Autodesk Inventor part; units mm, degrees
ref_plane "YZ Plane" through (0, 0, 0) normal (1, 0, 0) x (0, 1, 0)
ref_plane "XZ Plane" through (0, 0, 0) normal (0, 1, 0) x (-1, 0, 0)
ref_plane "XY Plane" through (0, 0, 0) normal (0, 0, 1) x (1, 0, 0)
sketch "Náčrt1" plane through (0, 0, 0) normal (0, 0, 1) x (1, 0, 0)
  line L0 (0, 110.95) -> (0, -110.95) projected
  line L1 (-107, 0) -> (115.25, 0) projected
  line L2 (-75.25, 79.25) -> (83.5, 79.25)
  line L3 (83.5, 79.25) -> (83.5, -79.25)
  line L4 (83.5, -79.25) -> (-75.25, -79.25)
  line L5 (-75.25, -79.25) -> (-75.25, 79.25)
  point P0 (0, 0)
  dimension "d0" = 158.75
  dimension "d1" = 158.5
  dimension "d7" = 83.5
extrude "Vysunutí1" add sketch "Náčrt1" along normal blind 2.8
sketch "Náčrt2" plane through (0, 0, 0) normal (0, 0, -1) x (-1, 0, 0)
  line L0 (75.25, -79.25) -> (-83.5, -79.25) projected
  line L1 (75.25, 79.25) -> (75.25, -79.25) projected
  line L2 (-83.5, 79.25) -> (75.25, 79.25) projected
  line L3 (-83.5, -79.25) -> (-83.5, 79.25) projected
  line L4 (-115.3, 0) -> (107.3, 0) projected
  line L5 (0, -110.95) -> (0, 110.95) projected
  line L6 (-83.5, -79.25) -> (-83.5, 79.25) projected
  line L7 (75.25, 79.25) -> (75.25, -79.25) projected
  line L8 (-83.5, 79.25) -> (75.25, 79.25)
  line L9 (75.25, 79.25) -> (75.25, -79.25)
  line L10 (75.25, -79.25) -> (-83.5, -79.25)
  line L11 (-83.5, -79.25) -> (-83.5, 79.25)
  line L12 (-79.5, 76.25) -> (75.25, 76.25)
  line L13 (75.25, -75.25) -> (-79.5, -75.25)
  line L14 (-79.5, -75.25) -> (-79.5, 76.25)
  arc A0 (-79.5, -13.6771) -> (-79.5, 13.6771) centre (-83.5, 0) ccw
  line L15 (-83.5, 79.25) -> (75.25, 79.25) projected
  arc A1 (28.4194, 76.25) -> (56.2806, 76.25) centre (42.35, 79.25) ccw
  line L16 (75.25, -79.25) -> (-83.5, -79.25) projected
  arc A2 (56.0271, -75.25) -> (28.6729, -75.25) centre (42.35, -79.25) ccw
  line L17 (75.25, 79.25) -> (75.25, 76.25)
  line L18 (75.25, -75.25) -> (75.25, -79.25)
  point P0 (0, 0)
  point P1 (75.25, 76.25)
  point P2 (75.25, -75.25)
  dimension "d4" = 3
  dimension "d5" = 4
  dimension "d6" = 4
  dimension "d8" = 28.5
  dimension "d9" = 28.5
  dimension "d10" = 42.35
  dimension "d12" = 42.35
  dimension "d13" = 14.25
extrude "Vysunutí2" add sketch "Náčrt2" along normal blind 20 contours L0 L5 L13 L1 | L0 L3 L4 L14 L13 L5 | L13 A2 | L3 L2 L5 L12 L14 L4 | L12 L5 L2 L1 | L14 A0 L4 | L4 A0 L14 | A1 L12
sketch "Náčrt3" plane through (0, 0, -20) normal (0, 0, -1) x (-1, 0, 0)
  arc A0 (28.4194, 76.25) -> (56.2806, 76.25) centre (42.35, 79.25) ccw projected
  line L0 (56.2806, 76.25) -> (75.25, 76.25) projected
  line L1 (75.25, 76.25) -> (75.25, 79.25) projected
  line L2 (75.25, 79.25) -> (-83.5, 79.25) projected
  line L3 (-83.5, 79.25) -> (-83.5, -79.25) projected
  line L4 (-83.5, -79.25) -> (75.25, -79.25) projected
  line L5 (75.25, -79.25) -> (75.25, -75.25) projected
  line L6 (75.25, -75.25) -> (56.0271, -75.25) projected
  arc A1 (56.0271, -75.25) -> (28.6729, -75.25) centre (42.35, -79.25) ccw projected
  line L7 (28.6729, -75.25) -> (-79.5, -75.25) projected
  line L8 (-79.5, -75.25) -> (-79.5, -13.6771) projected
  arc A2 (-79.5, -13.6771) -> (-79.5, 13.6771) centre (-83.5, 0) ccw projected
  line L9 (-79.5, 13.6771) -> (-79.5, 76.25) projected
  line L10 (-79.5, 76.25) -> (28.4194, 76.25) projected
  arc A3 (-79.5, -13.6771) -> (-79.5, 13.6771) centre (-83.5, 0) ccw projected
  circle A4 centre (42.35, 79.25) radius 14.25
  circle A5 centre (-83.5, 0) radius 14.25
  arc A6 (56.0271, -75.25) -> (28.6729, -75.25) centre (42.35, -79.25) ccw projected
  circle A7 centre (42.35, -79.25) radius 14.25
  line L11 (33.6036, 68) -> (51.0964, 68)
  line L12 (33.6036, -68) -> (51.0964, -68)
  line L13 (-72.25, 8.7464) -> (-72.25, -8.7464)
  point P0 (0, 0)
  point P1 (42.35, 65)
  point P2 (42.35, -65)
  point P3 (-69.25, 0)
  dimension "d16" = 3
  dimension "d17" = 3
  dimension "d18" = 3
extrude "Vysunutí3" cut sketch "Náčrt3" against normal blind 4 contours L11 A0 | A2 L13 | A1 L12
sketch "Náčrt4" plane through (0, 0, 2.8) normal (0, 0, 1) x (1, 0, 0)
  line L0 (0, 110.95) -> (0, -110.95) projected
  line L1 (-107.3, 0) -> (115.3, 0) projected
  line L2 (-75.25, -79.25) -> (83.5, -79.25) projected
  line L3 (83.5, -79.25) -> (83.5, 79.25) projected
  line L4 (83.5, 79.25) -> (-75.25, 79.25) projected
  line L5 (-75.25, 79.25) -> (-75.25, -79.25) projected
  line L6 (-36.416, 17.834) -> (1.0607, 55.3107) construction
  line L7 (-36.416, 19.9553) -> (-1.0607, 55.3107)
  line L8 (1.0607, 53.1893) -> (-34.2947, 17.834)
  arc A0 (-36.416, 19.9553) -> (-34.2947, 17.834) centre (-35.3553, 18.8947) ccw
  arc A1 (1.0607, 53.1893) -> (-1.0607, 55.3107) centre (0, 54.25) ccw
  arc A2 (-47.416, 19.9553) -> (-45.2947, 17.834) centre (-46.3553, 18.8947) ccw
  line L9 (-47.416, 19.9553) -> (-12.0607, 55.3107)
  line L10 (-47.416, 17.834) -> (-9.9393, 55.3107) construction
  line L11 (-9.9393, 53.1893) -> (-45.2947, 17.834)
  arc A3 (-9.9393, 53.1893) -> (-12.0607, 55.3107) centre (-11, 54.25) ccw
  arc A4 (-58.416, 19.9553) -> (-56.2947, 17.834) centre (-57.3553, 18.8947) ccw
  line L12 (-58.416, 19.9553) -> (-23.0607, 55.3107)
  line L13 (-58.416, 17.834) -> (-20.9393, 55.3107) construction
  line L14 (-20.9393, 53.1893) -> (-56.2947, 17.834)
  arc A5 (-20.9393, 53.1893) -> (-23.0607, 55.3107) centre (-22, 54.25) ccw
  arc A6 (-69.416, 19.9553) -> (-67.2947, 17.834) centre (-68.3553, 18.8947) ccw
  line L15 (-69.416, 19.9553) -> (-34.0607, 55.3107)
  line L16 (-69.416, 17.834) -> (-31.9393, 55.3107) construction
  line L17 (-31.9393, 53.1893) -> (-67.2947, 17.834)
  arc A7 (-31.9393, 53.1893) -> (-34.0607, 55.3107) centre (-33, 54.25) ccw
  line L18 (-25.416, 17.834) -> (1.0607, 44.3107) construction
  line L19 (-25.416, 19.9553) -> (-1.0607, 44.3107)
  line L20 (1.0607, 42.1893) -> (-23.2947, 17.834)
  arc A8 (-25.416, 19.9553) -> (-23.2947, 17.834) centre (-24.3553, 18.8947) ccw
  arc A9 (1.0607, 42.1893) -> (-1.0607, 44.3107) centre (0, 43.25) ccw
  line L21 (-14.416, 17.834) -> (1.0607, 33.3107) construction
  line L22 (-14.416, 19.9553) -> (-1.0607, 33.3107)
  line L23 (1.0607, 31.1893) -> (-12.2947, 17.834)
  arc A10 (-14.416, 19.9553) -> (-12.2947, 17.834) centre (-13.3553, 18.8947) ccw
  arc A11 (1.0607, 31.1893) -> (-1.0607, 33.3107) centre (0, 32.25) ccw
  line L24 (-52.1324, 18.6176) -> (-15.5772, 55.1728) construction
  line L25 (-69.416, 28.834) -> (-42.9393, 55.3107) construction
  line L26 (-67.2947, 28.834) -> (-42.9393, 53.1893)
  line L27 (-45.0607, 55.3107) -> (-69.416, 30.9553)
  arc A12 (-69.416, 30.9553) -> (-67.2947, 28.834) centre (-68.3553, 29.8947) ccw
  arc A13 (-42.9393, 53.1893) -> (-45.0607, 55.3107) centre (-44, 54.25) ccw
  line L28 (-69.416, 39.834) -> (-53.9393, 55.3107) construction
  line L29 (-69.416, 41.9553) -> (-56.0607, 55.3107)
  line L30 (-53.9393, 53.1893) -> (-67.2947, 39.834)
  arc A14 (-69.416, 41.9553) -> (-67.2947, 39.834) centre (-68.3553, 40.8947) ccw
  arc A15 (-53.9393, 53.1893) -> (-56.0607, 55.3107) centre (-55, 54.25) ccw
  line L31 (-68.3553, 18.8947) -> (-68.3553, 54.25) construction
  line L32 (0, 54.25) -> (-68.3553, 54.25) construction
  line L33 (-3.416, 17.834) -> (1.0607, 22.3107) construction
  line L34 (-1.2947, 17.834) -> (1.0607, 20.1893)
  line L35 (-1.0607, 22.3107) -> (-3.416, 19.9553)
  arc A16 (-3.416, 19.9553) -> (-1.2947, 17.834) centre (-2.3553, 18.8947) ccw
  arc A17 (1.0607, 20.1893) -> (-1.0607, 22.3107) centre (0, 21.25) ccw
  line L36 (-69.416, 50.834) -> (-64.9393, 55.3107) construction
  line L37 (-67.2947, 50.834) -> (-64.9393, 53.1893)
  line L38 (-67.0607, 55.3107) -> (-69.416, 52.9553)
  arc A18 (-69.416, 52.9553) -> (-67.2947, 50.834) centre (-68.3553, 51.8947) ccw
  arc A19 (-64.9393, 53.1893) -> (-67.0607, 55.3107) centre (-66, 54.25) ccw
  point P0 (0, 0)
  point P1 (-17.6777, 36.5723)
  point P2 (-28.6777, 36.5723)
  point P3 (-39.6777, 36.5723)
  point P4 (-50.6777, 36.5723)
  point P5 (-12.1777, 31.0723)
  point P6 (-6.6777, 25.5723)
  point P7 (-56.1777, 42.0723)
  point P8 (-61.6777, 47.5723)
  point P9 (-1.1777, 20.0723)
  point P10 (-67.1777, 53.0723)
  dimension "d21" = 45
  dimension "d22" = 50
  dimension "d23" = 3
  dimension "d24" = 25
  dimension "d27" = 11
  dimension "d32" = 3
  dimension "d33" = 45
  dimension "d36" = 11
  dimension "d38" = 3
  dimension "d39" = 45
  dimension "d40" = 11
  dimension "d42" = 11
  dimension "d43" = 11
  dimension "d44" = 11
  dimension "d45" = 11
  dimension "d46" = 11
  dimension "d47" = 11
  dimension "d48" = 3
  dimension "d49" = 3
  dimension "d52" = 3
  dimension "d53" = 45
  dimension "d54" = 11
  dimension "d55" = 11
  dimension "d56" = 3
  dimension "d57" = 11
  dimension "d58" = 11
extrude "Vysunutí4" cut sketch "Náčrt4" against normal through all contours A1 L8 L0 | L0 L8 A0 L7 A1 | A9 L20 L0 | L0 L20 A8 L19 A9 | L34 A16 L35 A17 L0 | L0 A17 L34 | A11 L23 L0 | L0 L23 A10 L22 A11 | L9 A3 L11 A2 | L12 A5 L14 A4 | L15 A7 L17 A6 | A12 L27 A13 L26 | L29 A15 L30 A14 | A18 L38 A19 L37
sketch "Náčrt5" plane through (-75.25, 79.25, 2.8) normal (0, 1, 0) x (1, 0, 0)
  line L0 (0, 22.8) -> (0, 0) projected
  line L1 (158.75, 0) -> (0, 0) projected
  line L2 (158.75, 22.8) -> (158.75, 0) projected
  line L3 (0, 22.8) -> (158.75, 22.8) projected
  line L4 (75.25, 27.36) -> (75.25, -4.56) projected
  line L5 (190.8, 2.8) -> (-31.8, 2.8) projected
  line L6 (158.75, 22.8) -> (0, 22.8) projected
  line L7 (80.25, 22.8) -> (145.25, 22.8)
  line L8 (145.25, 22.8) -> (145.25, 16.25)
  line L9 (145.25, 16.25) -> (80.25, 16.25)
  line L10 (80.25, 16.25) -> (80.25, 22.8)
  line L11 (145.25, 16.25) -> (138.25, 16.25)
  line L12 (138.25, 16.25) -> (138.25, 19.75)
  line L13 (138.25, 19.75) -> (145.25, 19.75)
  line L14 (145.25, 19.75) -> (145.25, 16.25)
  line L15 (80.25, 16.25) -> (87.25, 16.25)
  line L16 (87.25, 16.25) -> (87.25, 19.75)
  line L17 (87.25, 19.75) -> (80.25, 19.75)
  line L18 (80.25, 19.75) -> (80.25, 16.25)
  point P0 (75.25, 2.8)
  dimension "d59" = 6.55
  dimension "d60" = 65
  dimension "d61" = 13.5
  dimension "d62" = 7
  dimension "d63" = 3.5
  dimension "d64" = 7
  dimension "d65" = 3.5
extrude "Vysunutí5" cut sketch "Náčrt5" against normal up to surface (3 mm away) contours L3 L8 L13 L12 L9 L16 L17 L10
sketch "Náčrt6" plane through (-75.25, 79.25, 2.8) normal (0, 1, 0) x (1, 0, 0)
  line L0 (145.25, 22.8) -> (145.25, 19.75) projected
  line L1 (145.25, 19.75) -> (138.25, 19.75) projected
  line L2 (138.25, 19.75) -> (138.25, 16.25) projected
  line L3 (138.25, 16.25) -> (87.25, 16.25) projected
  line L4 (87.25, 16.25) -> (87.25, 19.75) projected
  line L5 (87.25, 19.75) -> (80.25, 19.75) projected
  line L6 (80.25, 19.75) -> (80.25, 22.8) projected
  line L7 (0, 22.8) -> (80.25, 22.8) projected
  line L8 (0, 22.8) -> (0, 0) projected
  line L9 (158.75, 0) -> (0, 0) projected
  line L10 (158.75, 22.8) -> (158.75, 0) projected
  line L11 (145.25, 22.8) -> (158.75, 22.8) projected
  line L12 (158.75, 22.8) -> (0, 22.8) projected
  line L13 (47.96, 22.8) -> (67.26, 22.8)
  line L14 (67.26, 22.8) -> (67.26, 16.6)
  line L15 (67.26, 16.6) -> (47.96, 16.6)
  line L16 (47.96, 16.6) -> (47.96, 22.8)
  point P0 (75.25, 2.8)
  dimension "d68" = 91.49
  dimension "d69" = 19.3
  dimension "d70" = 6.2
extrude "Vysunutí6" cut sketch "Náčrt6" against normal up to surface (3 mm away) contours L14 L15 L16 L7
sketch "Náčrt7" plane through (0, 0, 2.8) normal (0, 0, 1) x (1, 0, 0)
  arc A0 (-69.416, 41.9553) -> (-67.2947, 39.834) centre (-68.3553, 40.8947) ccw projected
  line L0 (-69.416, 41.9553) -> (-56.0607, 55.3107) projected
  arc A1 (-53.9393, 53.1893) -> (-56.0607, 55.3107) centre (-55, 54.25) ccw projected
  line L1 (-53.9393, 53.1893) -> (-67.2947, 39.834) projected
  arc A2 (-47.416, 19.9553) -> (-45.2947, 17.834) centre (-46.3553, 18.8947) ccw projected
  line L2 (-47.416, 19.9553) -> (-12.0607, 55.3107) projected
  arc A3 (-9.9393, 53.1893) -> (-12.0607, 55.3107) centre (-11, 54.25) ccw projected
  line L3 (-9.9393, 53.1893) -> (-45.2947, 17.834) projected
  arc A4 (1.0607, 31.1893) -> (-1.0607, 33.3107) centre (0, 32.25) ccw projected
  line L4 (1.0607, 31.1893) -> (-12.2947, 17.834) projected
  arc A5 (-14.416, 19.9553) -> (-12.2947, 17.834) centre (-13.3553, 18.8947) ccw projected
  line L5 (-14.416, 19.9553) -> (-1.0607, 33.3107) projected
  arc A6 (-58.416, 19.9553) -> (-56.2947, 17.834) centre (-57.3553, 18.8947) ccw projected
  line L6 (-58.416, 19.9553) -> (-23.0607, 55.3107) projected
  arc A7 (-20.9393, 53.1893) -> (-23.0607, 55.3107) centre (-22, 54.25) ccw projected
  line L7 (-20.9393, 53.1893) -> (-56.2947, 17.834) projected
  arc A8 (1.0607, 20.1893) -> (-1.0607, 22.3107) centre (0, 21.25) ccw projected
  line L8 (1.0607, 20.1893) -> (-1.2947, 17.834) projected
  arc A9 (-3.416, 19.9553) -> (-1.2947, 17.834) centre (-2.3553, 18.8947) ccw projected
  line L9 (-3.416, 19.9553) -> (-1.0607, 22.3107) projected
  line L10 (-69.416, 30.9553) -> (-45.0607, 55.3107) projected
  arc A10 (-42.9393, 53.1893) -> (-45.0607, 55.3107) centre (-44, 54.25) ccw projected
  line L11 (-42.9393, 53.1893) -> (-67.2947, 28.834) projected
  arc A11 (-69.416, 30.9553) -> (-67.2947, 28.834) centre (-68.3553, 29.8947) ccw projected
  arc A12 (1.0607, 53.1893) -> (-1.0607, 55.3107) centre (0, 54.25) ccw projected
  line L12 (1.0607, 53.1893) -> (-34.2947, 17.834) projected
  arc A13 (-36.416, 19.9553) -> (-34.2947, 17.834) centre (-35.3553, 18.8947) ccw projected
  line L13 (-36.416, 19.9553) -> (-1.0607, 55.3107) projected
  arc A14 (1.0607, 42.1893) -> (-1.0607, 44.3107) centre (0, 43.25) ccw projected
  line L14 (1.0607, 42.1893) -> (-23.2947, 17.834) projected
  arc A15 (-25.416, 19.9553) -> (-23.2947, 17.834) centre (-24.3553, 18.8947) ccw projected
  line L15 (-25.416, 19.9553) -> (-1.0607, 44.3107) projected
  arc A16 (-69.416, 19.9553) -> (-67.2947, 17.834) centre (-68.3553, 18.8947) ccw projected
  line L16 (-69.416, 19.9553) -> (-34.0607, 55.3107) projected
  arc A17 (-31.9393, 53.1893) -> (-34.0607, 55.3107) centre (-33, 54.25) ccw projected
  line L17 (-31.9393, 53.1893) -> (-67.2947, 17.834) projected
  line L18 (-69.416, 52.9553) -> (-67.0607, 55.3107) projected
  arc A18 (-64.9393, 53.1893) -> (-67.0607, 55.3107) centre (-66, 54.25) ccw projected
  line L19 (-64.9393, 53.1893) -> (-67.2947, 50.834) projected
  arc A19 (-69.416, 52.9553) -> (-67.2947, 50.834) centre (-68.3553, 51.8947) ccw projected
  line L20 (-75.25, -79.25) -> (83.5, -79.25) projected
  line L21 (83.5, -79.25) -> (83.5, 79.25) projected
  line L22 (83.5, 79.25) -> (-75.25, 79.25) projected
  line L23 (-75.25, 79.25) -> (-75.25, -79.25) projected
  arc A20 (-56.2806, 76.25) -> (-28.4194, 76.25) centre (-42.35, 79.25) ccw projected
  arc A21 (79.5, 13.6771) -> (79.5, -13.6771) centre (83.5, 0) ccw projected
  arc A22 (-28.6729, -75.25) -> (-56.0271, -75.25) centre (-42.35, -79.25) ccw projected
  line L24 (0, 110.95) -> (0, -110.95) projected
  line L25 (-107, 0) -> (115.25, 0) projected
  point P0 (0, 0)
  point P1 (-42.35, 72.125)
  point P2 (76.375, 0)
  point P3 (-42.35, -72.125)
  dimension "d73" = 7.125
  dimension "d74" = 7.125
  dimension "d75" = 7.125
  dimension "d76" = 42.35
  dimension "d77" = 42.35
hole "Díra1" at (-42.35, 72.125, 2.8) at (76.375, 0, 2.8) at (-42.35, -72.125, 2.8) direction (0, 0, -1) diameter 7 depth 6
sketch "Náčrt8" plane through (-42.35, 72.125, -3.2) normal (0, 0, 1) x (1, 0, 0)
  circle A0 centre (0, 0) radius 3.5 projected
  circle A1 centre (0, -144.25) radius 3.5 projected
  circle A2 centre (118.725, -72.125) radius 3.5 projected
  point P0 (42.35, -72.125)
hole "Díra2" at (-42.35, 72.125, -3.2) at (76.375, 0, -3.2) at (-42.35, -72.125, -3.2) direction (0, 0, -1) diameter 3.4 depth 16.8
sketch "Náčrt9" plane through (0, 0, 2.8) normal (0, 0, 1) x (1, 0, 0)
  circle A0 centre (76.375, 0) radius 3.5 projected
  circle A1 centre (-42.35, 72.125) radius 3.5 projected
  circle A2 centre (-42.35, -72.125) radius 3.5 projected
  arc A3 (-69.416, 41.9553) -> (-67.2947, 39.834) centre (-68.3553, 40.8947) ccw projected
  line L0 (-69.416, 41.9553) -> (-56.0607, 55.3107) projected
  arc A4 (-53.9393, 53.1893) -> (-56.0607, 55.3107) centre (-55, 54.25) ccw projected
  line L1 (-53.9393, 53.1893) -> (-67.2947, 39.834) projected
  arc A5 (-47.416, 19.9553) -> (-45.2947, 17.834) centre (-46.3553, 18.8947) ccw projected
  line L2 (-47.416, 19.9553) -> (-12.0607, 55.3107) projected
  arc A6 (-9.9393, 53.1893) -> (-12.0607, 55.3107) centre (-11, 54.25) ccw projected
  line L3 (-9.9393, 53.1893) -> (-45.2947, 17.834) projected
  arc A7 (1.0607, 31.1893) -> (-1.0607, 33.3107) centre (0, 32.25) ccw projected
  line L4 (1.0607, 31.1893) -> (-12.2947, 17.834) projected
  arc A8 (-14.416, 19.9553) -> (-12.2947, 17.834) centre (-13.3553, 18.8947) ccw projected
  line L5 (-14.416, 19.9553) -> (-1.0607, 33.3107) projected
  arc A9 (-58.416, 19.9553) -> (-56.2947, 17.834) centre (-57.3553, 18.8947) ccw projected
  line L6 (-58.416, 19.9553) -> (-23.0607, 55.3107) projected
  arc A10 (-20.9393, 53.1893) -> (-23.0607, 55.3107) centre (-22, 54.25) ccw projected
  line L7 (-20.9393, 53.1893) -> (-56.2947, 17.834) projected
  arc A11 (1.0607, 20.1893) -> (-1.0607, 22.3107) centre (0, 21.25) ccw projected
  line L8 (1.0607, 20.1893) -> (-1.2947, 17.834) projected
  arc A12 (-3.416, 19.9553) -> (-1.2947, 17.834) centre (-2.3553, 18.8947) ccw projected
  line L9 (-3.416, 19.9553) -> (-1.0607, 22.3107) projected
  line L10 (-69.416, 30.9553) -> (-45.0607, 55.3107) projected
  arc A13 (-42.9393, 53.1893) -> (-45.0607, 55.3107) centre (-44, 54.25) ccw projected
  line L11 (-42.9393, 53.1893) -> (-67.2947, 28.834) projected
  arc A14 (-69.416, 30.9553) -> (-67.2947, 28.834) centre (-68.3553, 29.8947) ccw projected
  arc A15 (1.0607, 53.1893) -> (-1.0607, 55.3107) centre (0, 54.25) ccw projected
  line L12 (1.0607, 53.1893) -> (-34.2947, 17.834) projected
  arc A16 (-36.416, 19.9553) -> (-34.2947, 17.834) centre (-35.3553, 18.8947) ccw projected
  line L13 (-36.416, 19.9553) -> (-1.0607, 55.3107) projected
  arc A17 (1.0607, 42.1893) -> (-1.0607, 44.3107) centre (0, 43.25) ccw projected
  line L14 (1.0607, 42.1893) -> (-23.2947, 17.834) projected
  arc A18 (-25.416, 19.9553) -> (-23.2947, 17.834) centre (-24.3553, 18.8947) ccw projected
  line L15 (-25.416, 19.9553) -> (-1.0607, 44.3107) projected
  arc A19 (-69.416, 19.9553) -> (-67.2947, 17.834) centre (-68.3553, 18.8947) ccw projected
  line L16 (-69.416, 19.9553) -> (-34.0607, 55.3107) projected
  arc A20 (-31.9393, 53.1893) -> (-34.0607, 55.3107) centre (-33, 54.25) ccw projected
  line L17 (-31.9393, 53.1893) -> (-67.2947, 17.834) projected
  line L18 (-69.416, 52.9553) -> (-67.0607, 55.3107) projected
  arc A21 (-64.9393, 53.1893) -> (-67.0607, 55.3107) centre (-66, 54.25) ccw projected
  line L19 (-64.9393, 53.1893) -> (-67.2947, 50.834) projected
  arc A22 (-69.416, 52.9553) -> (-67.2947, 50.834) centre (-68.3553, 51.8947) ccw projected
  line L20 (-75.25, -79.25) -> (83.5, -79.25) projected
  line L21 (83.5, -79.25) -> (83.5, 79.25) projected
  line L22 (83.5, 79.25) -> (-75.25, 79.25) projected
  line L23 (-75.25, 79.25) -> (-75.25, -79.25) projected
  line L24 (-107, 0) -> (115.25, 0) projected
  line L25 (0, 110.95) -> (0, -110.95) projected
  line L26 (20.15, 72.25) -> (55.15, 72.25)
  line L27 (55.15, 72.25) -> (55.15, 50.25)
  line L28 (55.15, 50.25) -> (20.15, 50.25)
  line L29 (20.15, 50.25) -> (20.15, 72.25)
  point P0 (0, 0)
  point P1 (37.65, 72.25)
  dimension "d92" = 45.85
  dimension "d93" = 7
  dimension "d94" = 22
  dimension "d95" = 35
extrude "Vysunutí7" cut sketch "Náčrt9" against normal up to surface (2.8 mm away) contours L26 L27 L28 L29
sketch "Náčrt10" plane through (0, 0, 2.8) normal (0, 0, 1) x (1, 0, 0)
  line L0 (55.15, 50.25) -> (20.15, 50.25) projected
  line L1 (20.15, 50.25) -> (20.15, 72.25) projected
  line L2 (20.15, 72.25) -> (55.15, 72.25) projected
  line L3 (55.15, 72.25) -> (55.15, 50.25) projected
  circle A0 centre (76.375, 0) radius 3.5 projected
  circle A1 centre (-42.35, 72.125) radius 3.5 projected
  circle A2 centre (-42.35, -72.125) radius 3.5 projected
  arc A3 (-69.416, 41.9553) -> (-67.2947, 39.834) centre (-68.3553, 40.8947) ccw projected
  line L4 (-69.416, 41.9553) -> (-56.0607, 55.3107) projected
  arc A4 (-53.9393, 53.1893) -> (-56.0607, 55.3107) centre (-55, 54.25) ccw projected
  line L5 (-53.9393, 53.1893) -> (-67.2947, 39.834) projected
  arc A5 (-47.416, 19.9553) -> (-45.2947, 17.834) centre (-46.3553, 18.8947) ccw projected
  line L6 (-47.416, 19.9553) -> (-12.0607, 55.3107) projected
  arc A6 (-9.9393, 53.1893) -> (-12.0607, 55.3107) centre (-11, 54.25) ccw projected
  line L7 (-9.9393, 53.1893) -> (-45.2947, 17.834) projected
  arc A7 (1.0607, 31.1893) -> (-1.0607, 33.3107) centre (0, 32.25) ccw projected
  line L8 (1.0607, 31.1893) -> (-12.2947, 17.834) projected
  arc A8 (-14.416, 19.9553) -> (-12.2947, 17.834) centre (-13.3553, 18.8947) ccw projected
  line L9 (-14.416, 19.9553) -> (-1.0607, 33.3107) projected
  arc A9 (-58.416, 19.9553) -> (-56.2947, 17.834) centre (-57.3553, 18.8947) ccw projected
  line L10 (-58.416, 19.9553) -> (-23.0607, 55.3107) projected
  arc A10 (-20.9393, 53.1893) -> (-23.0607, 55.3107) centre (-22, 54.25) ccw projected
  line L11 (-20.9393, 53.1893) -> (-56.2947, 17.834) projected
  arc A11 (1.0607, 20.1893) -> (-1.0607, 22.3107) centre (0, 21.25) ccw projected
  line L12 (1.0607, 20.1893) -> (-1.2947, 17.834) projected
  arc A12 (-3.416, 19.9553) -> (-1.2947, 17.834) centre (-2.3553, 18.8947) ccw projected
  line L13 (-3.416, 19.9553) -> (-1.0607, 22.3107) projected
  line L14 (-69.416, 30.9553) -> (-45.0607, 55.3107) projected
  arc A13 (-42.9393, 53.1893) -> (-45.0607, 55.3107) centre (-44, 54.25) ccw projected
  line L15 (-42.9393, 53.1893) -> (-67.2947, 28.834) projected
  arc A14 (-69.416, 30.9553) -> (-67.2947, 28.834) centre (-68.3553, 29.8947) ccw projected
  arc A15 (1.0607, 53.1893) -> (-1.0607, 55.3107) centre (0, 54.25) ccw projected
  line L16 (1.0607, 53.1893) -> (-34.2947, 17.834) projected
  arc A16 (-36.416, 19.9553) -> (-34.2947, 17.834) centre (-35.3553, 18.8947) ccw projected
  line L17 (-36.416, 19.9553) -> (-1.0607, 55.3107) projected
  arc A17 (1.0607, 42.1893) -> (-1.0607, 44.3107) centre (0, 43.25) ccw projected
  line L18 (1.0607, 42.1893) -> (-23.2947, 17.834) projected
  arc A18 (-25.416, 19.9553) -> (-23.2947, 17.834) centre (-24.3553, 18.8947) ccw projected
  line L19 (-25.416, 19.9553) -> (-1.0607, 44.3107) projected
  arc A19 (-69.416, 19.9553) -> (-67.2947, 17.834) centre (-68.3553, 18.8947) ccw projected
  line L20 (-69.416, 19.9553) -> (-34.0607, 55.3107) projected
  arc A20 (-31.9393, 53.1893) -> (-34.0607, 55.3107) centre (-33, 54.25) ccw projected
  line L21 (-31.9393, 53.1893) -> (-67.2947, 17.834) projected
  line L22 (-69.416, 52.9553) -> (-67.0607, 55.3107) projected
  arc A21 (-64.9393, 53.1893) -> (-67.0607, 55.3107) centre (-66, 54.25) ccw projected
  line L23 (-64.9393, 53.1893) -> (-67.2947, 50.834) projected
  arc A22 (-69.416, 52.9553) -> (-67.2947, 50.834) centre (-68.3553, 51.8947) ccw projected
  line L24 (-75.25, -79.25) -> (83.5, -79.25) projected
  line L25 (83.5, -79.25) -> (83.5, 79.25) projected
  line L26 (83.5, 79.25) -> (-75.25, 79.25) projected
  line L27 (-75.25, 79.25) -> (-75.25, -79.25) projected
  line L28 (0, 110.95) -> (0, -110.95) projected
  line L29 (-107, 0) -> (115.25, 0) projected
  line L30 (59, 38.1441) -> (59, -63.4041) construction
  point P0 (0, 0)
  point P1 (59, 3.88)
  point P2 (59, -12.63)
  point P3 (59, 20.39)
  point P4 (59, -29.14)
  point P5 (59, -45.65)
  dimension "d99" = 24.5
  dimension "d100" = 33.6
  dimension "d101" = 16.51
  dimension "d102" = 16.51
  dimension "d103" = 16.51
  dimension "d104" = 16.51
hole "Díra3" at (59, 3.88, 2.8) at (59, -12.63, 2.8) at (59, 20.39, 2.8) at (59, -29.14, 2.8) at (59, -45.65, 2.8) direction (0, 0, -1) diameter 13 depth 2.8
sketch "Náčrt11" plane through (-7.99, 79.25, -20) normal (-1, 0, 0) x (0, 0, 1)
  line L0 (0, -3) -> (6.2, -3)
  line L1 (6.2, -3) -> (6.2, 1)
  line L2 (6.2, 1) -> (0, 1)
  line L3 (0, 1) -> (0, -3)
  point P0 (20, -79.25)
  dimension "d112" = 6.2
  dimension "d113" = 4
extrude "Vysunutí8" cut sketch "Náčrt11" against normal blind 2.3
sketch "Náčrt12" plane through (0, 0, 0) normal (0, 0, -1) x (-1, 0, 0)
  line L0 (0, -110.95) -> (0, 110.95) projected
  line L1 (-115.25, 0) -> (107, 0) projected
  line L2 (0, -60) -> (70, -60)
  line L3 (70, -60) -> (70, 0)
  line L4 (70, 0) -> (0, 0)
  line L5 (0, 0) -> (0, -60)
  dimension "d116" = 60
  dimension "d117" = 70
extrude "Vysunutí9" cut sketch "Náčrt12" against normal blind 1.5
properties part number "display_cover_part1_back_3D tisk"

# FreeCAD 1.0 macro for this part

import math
import FreeCAD as App
import Part
import Sketcher
from FreeCAD import Vector
Q = App.Units.Quantity

doc = App.newDocument("Part")
body = doc.addObject("PartDesign::Body", "Body")

# Sketch on XY plane
sketch1 = body.newObject("Sketcher::SketchObject", "Sketch")
sketch1.AttachmentSupport = (doc.getObject("XY_Plane"), [""])
sketch1.MapMode = "FlatFace"
sketch1.addGeometry([
    Part.LineSegment(Vector(83.5, 79.25, 0), Vector(-75.25, 79.25, 0)),
    Part.LineSegment(Vector(-75.25, 79.25, 0), Vector(-75.25, -79.25, 0)),
    Part.LineSegment(Vector(-75.25, -79.25, 0), Vector(83.5, -79.25, 0)),
    Part.LineSegment(Vector(83.5, -79.25, 0), Vector(83.5, 79.25, 0)),
], False)
sketch1.addConstraint([
    Sketcher.Constraint("Coincident", 0, 2, 1, 1),
    Sketcher.Constraint("Coincident", 1, 2, 2, 1),
    Sketcher.Constraint("Coincident", 2, 2, 3, 1),
    Sketcher.Constraint("Coincident", 3, 2, 0, 1),
    Sketcher.Constraint("Horizontal", 0),
    Sketcher.Constraint("Vertical", 1),
    Sketcher.Constraint("Horizontal", 2),
    Sketcher.Constraint("Vertical", 3),
    Sketcher.Constraint("DistanceY", 1, 2, 1, 1, 158.5),
    Sketcher.Constraint("DistanceX", 0, 2, 0, 1, 158.75),
    Sketcher.Constraint("DistanceX", -1, 1, 2, 2, 83.5),
    Sketcher.Constraint("DistanceY", -1, 1, 0, 2, 79.25),
])
pad1 = body.newObject("PartDesign::Pad", "Pad")
pad1.Profile = sketch1
pad1.Length = 2.8

# Sketch on XY plane
sketch2 = body.newObject("Sketcher::SketchObject", "Sketch001")
sketch2.AttachmentSupport = (doc.getObject("XY_Plane"), [""])
sketch2.MapMode = "FlatFace"
sketch2.addGeometry([
    Part.LineSegment(Vector(-75.25, -79.25, 0), Vector(-75.25, -75.25, 0)),  # 0
    Part.LineSegment(Vector(-75.25, -75.25, 0), Vector(-56.0271, -75.25, 0)),  # 1
    Part.ArcOfCircle(Part.Circle(Vector(-42.35, -79.25, 0), Vector(0, 0, 1), 14.25002), math.radians(16.302069), math.radians(163.697931)),  # 2
    Part.LineSegment(Vector(-28.6729, -75.25, 0), Vector(79.5, -75.25, 0)),  # 3
    Part.LineSegment(Vector(79.5, -75.25, 0), Vector(79.5, -13.6771, 0)),  # 4
    Part.ArcOfCircle(Part.Circle(Vector(83.5, 0, 0), Vector(0, 0, 1), 14.25002), math.radians(106.302069), math.radians(253.697931)),  # 5
    Part.LineSegment(Vector(79.5, 13.6771, 0), Vector(79.5, 76.25, 0)),  # 6
    Part.LineSegment(Vector(79.5, 76.25, 0), Vector(-28.4194, 76.25, 0)),  # 7
    Part.ArcOfCircle(Part.Circle(Vector(-42.35, 79.25, 0), Vector(0, 0, 1), 14.249969), math.radians(-167.846776), math.radians(-12.153224)),  # 8
    Part.LineSegment(Vector(-56.2806, 76.25, 0), Vector(-75.25, 76.25, 0)),  # 9
    Part.LineSegment(Vector(-75.25, 76.25, 0), Vector(-75.25, 79.25, 0)),  # 10
    Part.LineSegment(Vector(-75.25, 79.25, 0), Vector(83.5, 79.25, 0)),  # 11
    Part.LineSegment(Vector(83.5, 79.25, 0), Vector(83.5, -79.25, 0)),  # 12
    Part.LineSegment(Vector(83.5, -79.25, 0), Vector(-75.25, -79.25, 0)),  # 13
], False)
sketch2.addConstraint([
    Sketcher.Constraint("Coincident", 0, 2, 1, 1),
    Sketcher.Constraint("Coincident", 1, 2, 2, 2),
    Sketcher.Constraint("Coincident", 2, 1, 3, 1),
    Sketcher.Constraint("Coincident", 3, 2, 4, 1),
    Sketcher.Constraint("Coincident", 4, 2, 5, 2),
    Sketcher.Constraint("Coincident", 5, 1, 6, 1),
    Sketcher.Constraint("Coincident", 6, 2, 7, 1),
    Sketcher.Constraint("Coincident", 7, 2, 8, 2),
    Sketcher.Constraint("Coincident", 8, 1, 9, 1),
    Sketcher.Constraint("Coincident", 9, 2, 10, 1),
    Sketcher.Constraint("Coincident", 10, 2, 11, 1),
    Sketcher.Constraint("Coincident", 11, 2, 12, 1),
    Sketcher.Constraint("Coincident", 12, 2, 13, 1),
    Sketcher.Constraint("Coincident", 13, 2, 0, 1),
    Sketcher.Constraint("Vertical", 0),
    Sketcher.Constraint("Horizontal", 1),
    Sketcher.Constraint("Horizontal", 3),
    Sketcher.Constraint("Vertical", 4),
    Sketcher.Constraint("Vertical", 6),
    Sketcher.Constraint("Horizontal", 7),
    Sketcher.Constraint("Horizontal", 9),
    Sketcher.Constraint("Vertical", 10),
    Sketcher.Constraint("Horizontal", 11),
    Sketcher.Constraint("Vertical", 12),
    Sketcher.Constraint("Horizontal", 13),
    Sketcher.Constraint("Equal", 2, 5),
    Sketcher.Constraint("Equal", 5, 8),
    Sketcher.Constraint("Symmetric", 2, 3, 8, 3, -1),
    Sketcher.Constraint("Symmetric", 4, 2, 5, 1, -1),
    Sketcher.Constraint("Symmetric", 10, 2, 13, 2, -1),
    Sketcher.Constraint("Horizontal", 1, 2, 2, 1),
    Sketcher.Constraint("Horizontal", 7, 2, 8, 1),
    Sketcher.Constraint("Horizontal", 8, 3, 10, 2),
    Sketcher.Constraint("Vertical", 5, 3, 11, 2),
    Sketcher.Constraint("DistanceY", 0, 1, 0, 2, 4.0),
    Sketcher.Constraint("DistanceY", 10, 1, 10, 2, 3.0),
    Sketcher.Constraint("Radius", 2, 14.25),
    Sketcher.Constraint("DistanceX", 3, 2, 5, 3, 4.0),
    Sketcher.Constraint("DistanceX", 2, 3, -1, 1, 42.35),
    Sketcher.Constraint("DistanceY", 12, 2, 12, 1, 158.5),
    Sketcher.Constraint("DistanceX", 11, 1, 11, 2, 158.75),
    Sketcher.Constraint("DistanceX", -1, 1, 5, 3, 83.5),
])
pad2 = body.newObject("PartDesign::Pad", "Pad001")
pad2.Profile = sketch2
pad2.Length = 20
pad2.Reversed = True

# Sketch on XY plane
sketch3 = body.newObject("Sketcher::SketchObject", "Sketch002")
sketch3.AttachmentSupport = (doc.getObject("XY_Plane"), [""])
sketch3.MapMode = "FlatFace"
sketch3.AttachmentOffset = App.Placement(Vector(0, 0, -20), App.Rotation())
sketch3.addGeometry([
    Part.LineSegment(Vector(-51.0964, 68, 0), Vector(-33.6036, 68, 0)),  # 0
    Part.ArcOfCircle(Part.Circle(Vector(-42.35, 79.25, 0), Vector(0, 0, 1), 14.249969), math.radians(-127.863558), math.radians(-52.136442)),  # 1
    Part.ArcOfCircle(Part.Circle(Vector(83.5, 0, 0), Vector(0, 0, 1), 14.25002), math.radians(142.136442), math.radians(217.863558)),  # 2
    Part.LineSegment(Vector(72.25, -8.7464, 0), Vector(72.25, 8.7464, 0)),  # 3
    Part.ArcOfCircle(Part.Circle(Vector(-42.35, -79.25, 0), Vector(0, 0, 1), 14.25002), math.radians(52.136442), math.radians(127.863558)),  # 4
    Part.LineSegment(Vector(-51.0964, -68, 0), Vector(-33.6036, -68, 0)),  # 5
], False)
sketch3.addConstraint([
    Sketcher.Constraint("Coincident", 0, 1, 1, 1),
    Sketcher.Constraint("Coincident", 1, 2, 0, 2),
    Sketcher.Constraint("Coincident", 2, 1, 3, 2),
    Sketcher.Constraint("Coincident", 3, 1, 2, 2),
    Sketcher.Constraint("Coincident", 4, 1, 5, 2),
    Sketcher.Constraint("Coincident", 5, 1, 4, 2),
    Sketcher.Constraint("Horizontal", 0),
    Sketcher.Constraint("Vertical", 3),
    Sketcher.Constraint("Horizontal", 5),
    Sketcher.Constraint("Equal", 1, 2),
    Sketcher.Constraint("Equal", 2, 4),
    Sketcher.Constraint("Symmetric", 1, 3, 4, 3, -1),
    Sketcher.Constraint("PointOnObject", 2, 3, -1),
    Sketcher.Constraint("Vertical", 1, 2, 4, 1),
    Sketcher.Constraint("Equal", 5, 3),
    Sketcher.Constraint("Radius", 1, 14.25),
    Sketcher.Constraint("DistanceY", -1, 1, 0, 1, 68.0),
    Sketcher.Constraint("DistanceX", -1, 1, 2, 3, 83.5),
    Sketcher.Constraint("DistanceY", 4, 3, 1, 3, 158.5),
    Sketcher.Constraint("DistanceX", 1, 3, 2, 1, 114.6),
])
pocket1 = body.newObject("PartDesign::Pocket", "Pocket")
pocket1.Profile = sketch3
pocket1.Length = 4
pocket1.Reversed = True

# Sketch on XY plane
sketch4 = body.newObject("Sketcher::SketchObject", "Sketch003")
sketch4.AttachmentSupport = (doc.getObject("XY_Plane"), [""])
sketch4.MapMode = "FlatFace"
sketch4.AttachmentOffset = App.Placement(Vector(0, 0, 2.8), App.Rotation())
sketch4.addGeometry([
    Part.ArcOfCircle(Part.Circle(Vector(0, 54.25, 0), Vector(0, 0, 1), 1.500056), math.radians(-45), math.radians(135)),  # 0
    Part.LineSegment(Vector(-1.0607, 55.3107, 0), Vector(-36.416, 19.9553, 0)),  # 1
    Part.ArcOfCircle(Part.Circle(Vector(-35.3553, 18.8947, 0), Vector(0, 0, 1), 1.499986), math.radians(135.002701), math.radians(314.997299)),  # 2
    Part.LineSegment(Vector(-34.2947, 17.834, 0), Vector(1.0607, 53.1893, 0)),  # 3
    Part.ArcOfCircle(Part.Circle(Vector(0, 43.25, 0), Vector(0, 0, 1), 1.500056), math.radians(-45), math.radians(135)),  # 4
    Part.LineSegment(Vector(-1.0607, 44.3107, 0), Vector(-25.416, 19.9553, 0)),  # 5
    Part.ArcOfCircle(Part.Circle(Vector(-24.3553, 18.8947, 0), Vector(0, 0, 1), 1.499986), math.radians(135.002701), math.radians(314.997299)),  # 6
    Part.LineSegment(Vector(-23.2947, 17.834, 0), Vector(1.0607, 42.1893, 0)),  # 7
    Part.LineSegment(Vector(-1.2947, 17.834, 0), Vector(1.0607, 20.1893, 0)),  # 8
    Part.ArcOfCircle(Part.Circle(Vector(0, 21.25, 0), Vector(0, 0, 1), 1.500056), math.radians(-45), math.radians(135)),  # 9
    Part.LineSegment(Vector(-1.0607, 22.3107, 0), Vector(-3.416, 19.9553, 0)),  # 10
    Part.ArcOfCircle(Part.Circle(Vector(-2.3553, 18.8947, 0), Vector(0, 0, 1), 1.499986), math.radians(135.002701), math.radians(314.997299)),  # 11
    Part.ArcOfCircle(Part.Circle(Vector(0, 32.25, 0), Vector(0, 0, 1), 1.500056), math.radians(-45), math.radians(135)),  # 12
    Part.LineSegment(Vector(-1.0607, 33.3107, 0), Vector(-14.416, 19.9553, 0)),  # 13
    Part.ArcOfCircle(Part.Circle(Vector(-13.3553, 18.8947, 0), Vector(0, 0, 1), 1.499986), math.radians(135.002701), math.radians(314.997299)),  # 14
    Part.LineSegment(Vector(-12.2947, 17.834, 0), Vector(1.0607, 31.1893, 0)),  # 15
    Part.LineSegment(Vector(-12.0607, 55.3107, 0), Vector(-47.416, 19.9553, 0)),  # 16
    Part.ArcOfCircle(Part.Circle(Vector(-46.3553, 18.8947, 0), Vector(0, 0, 1), 1.499986), math.radians(135.002701), math.radians(314.997299)),  # 17
    Part.LineSegment(Vector(-45.2947, 17.834, 0), Vector(-9.9393, 53.1893, 0)),  # 18
    Part.ArcOfCircle(Part.Circle(Vector(-11, 54.25, 0), Vector(0, 0, 1), 1.500056), math.radians(-45), math.radians(135)),  # 19
    Part.LineSegment(Vector(-23.0607, 55.3107, 0), Vector(-58.416, 19.9553, 0)),  # 20
    Part.ArcOfCircle(Part.Circle(Vector(-57.3553, 18.8947, 0), Vector(0, 0, 1), 1.499986), math.radians(135.002701), math.radians(314.997299)),  # 21
    Part.LineSegment(Vector(-56.2947, 17.834, 0), Vector(-20.9393, 53.1893, 0)),  # 22
    Part.ArcOfCircle(Part.Circle(Vector(-22, 54.25, 0), Vector(0, 0, 1), 1.500056), math.radians(-45), math.radians(135)),  # 23
    Part.LineSegment(Vector(-34.0607, 55.3107, 0), Vector(-69.416, 19.9553, 0)),  # 24
    Part.ArcOfCircle(Part.Circle(Vector(-68.3553, 18.8947, 0), Vector(0, 0, 1), 1.499986), math.radians(135.002701), math.radians(314.997299)),  # 25
    Part.LineSegment(Vector(-67.2947, 17.834, 0), Vector(-31.9393, 53.1893, 0)),  # 26
    Part.ArcOfCircle(Part.Circle(Vector(-33, 54.25, 0), Vector(0, 0, 1), 1.500056), math.radians(-45), math.radians(135)),  # 27
    Part.ArcOfCircle(Part.Circle(Vector(-68.3553, 29.8947, 0), Vector(0, 0, 1), 1.499986), math.radians(135.002701), math.radians(314.997299)),  # 28
    Part.LineSegment(Vector(-67.2947, 28.834, 0), Vector(-42.9393, 53.1893, 0)),  # 29
    Part.ArcOfCircle(Part.Circle(Vector(-44, 54.25, 0), Vector(0, 0, 1), 1.500056), math.radians(-45), math.radians(135)),  # 30
    Part.LineSegment(Vector(-45.0607, 55.3107, 0), Vector(-69.416, 30.9553, 0)),  # 31
    Part.LineSegment(Vector(-56.0607, 55.3107, 0), Vector(-69.416, 41.9553, 0)),  # 32
    Part.ArcOfCircle(Part.Circle(Vector(-68.3553, 40.8947, 0), Vector(0, 0, 1), 1.499986), math.radians(135.002701), math.radians(314.997299)),  # 33
    Part.LineSegment(Vector(-67.2947, 39.834, 0), Vector(-53.9393, 53.1893, 0)),  # 34
    Part.ArcOfCircle(Part.Circle(Vector(-55, 54.25, 0), Vector(0, 0, 1), 1.500056), math.radians(-45), math.radians(135)),  # 35
    Part.ArcOfCircle(Part.Circle(Vector(-68.3553, 51.8947, 0), Vector(0, 0, 1), 1.499986), math.radians(135.002701), math.radians(314.997299)),  # 36
    Part.LineSegment(Vector(-67.2947, 50.834, 0), Vector(-64.9393, 53.1893, 0)),  # 37
    Part.ArcOfCircle(Part.Circle(Vector(-66, 54.25, 0), Vector(0, 0, 1), 1.500056), math.radians(-45), math.radians(135)),  # 38
    Part.LineSegment(Vector(-67.0607, 55.3107, 0), Vector(-69.416, 52.9553, 0)),  # 39
], False)
sketch4.addConstraint([
    Sketcher.Constraint("Tangent", 0, 2, 1, 1),
    Sketcher.Constraint("Tangent", 1, 2, 2, 1),
    Sketcher.Constraint("Tangent", 2, 2, 3, 1),
    Sketcher.Constraint("Tangent", 3, 2, 0, 1),
    Sketcher.Constraint("Tangent", 4, 2, 5, 1),
    Sketcher.Constraint("Tangent", 5, 2, 6, 1),
    Sketcher.Constraint("Tangent", 6, 2, 7, 1),
    Sketcher.Constraint("Tangent", 7, 2, 4, 1),
    Sketcher.Constraint("Tangent", 8, 2, 9, 1),
    Sketcher.Constraint("Tangent", 9, 2, 10, 1),
    Sketcher.Constraint("Tangent", 10, 2, 11, 1),
    Sketcher.Constraint("Tangent", 11, 2, 8, 1),
    Sketcher.Constraint("Tangent", 12, 2, 13, 1),
    Sketcher.Constraint("Tangent", 13, 2, 14, 1),
    Sketcher.Constraint("Tangent", 14, 2, 15, 1),
    Sketcher.Constraint("Tangent", 15, 2, 12, 1),
    Sketcher.Constraint("Tangent", 16, 2, 17, 1),
    Sketcher.Constraint("Tangent", 17, 2, 18, 1),
    Sketcher.Constraint("Tangent", 18, 2, 19, 1),
    Sketcher.Constraint("Tangent", 19, 2, 16, 1),
    Sketcher.Constraint("Tangent", 20, 2, 21, 1),
    Sketcher.Constraint("Tangent", 21, 2, 22, 1),
    Sketcher.Constraint("Tangent", 22, 2, 23, 1),
    Sketcher.Constraint("Tangent", 23, 2, 20, 1),
    Sketcher.Constraint("Tangent", 24, 2, 25, 1),
    Sketcher.Constraint("Tangent", 25, 2, 26, 1),
    Sketcher.Constraint("Tangent", 26, 2, 27, 1),
    Sketcher.Constraint("Tangent", 27, 2, 24, 1),
    Sketcher.Constraint("Tangent", 28, 2, 29, 1),
    Sketcher.Constraint("Tangent", 29, 2, 30, 1),
    Sketcher.Constraint("Tangent", 30, 2, 31, 1),
    Sketcher.Constraint("Tangent", 31, 2, 28, 1),
    Sketcher.Constraint("Tangent", 32, 2, 33, 1),
    Sketcher.Constraint("Tangent", 33, 2, 34, 1),
    Sketcher.Constraint("Tangent", 34, 2, 35, 1),
    Sketcher.Constraint("Tangent", 35, 2, 32, 1),
    Sketcher.Constraint("Tangent", 36, 2, 37, 1),
    Sketcher.Constraint("Tangent", 37, 2, 38, 1),
    Sketcher.Constraint("Tangent", 38, 2, 39, 1),
    Sketcher.Constraint("Tangent", 39, 2, 36, 1),
    Sketcher.Constraint("Equal", 0, 2),
    Sketcher.Constraint("Equal", 2, 4),
    Sketcher.Constraint("Equal", 4, 6),
    Sketcher.Constraint("Equal", 6, 9),
    Sketcher.Constraint("Equal", 9, 11),
    Sketcher.Constraint("Equal", 11, 12),
    Sketcher.Constraint("Equal", 12, 14),
    Sketcher.Constraint("Equal", 14, 17),
    Sketcher.Constraint("Equal", 17, 19),
    Sketcher.Constraint("Equal", 19, 21),
    Sketcher.Constraint("Equal", 21, 23),
    Sketcher.Constraint("Equal", 23, 25),
    Sketcher.Constraint("Equal", 25, 27),
    Sketcher.Constraint("Equal", 27, 28),
    Sketcher.Constraint("Equal", 28, 30),
    Sketcher.Constraint("Equal", 30, 33),
    Sketcher.Constraint("Equal", 33, 35),
    Sketcher.Constraint("Equal", 35, 36),
    Sketcher.Constraint("Equal", 36, 38),
    Sketcher.Constraint("PointOnObject", 0, 3, -2),
    Sketcher.Constraint("PointOnObject", 4, 3, -2),
    Sketcher.Constraint("PointOnObject", 9, 3, -2),
    Sketcher.Constraint("PointOnObject", 12, 3, -2),
    Sketcher.Constraint("Parallel", 3, 5),
    Sketcher.Constraint("Parallel", 7, 8),
    Sketcher.Constraint("Parallel", 10, 13),
    Sketcher.Constraint("Parallel", 15, 16),
    Sketcher.Constraint("Parallel", 18, 20),
    Sketcher.Constraint("Parallel", 22, 24),
    Sketcher.Constraint("Parallel", 26, 29),
    Sketcher.Constraint("Parallel", 31, 32),
    Sketcher.Constraint("Parallel", 34, 37),
    Sketcher.Constraint("Horizontal", 2, 3, 6, 3),
    Sketcher.Constraint("Horizontal", 6, 3, 11, 3),
    Sketcher.Constraint("Horizontal", 11, 3, 14, 3),
    Sketcher.Constraint("Horizontal", 14, 3, 17, 3),
    Sketcher.Constraint("Horizontal", 0, 3, 19, 3),
    Sketcher.Constraint("Horizontal", 17, 3, 21, 3),
    Sketcher.Constraint("Horizontal", 19, 3, 23, 3),
    Sketcher.Constraint("Horizontal", 21, 3, 25, 3),
    Sketcher.Constraint("Horizontal", 23, 3, 27, 3),
    Sketcher.Constraint("Horizontal", 27, 3, 30, 3),
    Sketcher.Constraint("Horizontal", 30, 3, 35, 3),
    Sketcher.Constraint("Horizontal", 35, 3, 38, 3),
    Sketcher.Constraint("Vertical", 25, 3, 28, 3),
    Sketcher.Constraint("Vertical", 28, 3, 33, 3),
    Sketcher.Constraint("Vertical", 33, 3, 36, 3),
    Sketcher.Constraint("Equal", 7, 29),
    Sketcher.Constraint("Equal", 15, 32),
    Sketcher.Constraint("Equal", 10, 37),
    Sketcher.Constraint("Radius", 0, 1.5),
    Sketcher.Constraint("Angle", 3, Q("45 deg")),
    Sketcher.Constraint("Distance", 1, 50.0),
    Sketcher.Constraint("DistanceX", 19, 3, -1, 1, 11.0),
    Sketcher.Constraint("DistanceY", 4, 3, 0, 3, 11.0),
    Sketcher.Constraint("DistanceY", 12, 3, 4, 3, 11.0),
    Sketcher.Constraint("DistanceY", 9, 3, 12, 3, 11.0),
    Sketcher.Constraint("DistanceX", 21, 3, 17, 3, 11.0),
    Sketcher.Constraint("DistanceX", 25, 3, 21, 3, 11.0),
    Sketcher.Constraint("DistanceY", -1, 1, 0, 3, 54.25),
])
pocket2 = body.newObject("PartDesign::Pocket", "Pocket001")
pocket2.Profile = sketch4
pocket2.Type = "ThroughAll"

# Sketch on XZ plane
sketch5 = body.newObject("Sketcher::SketchObject", "Sketch004")
sketch5.AttachmentSupport = (doc.getObject("XZ_Plane"), [""])
sketch5.MapMode = "FlatFace"
sketch5.AttachmentOffset = App.Placement(Vector(0, 0, -79.25), App.Rotation())
sketch5.addGeometry([
    Part.LineSegment(Vector(70, -20, 0), Vector(5, -20, 0)),  # 0
    Part.LineSegment(Vector(5, -20, 0), Vector(5, -16.95, 0)),  # 1
    Part.LineSegment(Vector(5, -16.95, 0), Vector(12, -16.95, 0)),  # 2
    Part.LineSegment(Vector(12, -16.95, 0), Vector(12, -13.45, 0)),  # 3
    Part.LineSegment(Vector(12, -13.45, 0), Vector(63, -13.45, 0)),  # 4
    Part.LineSegment(Vector(63, -13.45, 0), Vector(63, -16.95, 0)),  # 5
    Part.LineSegment(Vector(63, -16.95, 0), Vector(70, -16.95, 0)),  # 6
    Part.LineSegment(Vector(70, -16.95, 0), Vector(70, -20, 0)),  # 7
], False)
sketch5.addConstraint([
    Sketcher.Constraint("Coincident", 0, 2, 1, 1),
    Sketcher.Constraint("Coincident", 1, 2, 2, 1),
    Sketcher.Constraint("Coincident", 2, 2, 3, 1),
    Sketcher.Constraint("Coincident", 3, 2, 4, 1),
    Sketcher.Constraint("Coincident", 4, 2, 5, 1),
    Sketcher.Constraint("Coincident", 5, 2, 6, 1),
    Sketcher.Constraint("Coincident", 6, 2, 7, 1),
    Sketcher.Constraint("Coincident", 7, 2, 0, 1),
    Sketcher.Constraint("Horizontal", 0),
    Sketcher.Constraint("Vertical", 1),
    Sketcher.Constraint("Horizontal", 2),
    Sketcher.Constraint("Vertical", 3),
    Sketcher.Constraint("Horizontal", 4),
    Sketcher.Constraint("Vertical", 5),
    Sketcher.Constraint("Horizontal", 6),
    Sketcher.Constraint("Vertical", 7),
    Sketcher.Constraint("Horizontal", 2, 2, 5, 2),
    Sketcher.Constraint("Equal", 2, 6),
    Sketcher.Constraint("DistanceX", 0, 2, 0, 1, 65.0),
    Sketcher.Constraint("DistanceX", 2, 1, 2, 2, 7.0),
    Sketcher.Constraint("DistanceY", 3, 1, 3, 2, 3.5),
    Sketcher.Constraint("DistanceY", 0, 2, 3, 2, 6.55),
    Sketcher.Constraint("DistanceX", -1, 1, 0, 2, 5.0),
    Sketcher.Constraint("DistanceY", 0, 2, -1, 1, 20.0),
])
pocket3 = body.newObject("PartDesign::Pocket", "Pocket002")
pocket3.Profile = sketch5
pocket3.Length = 3
pocket3.Reversed = True

# Sketch on XZ plane
sketch6 = body.newObject("Sketcher::SketchObject", "Sketch005")
sketch6.AttachmentSupport = (doc.getObject("XZ_Plane"), [""])
sketch6.MapMode = "FlatFace"
sketch6.AttachmentOffset = App.Placement(Vector(0, 0, -79.25), App.Rotation())
sketch6.addGeometry([
    Part.LineSegment(Vector(-7.99, -13.8, 0), Vector(-7.99, -20, 0)),
    Part.LineSegment(Vector(-7.99, -20, 0), Vector(-27.29, -20, 0)),
    Part.LineSegment(Vector(-27.29, -20, 0), Vector(-27.29, -13.8, 0)),
    Part.LineSegment(Vector(-27.29, -13.8, 0), Vector(-7.99, -13.8, 0)),
], False)
sketch6.addConstraint([
    Sketcher.Constraint("Coincident", 0, 2, 1, 1),
    Sketcher.Constraint("Coincident", 1, 2, 2, 1),
    Sketcher.Constraint("Coincident", 2, 2, 3, 1),
    Sketcher.Constraint("Coincident", 3, 2, 0, 1),
    Sketcher.Constraint("Vertical", 0),
    Sketcher.Constraint("Horizontal", 1),
    Sketcher.Constraint("Vertical", 2),
    Sketcher.Constraint("Horizontal", 3),
    Sketcher.Constraint("DistanceX", 1, 2, 1, 1, 19.3),
    Sketcher.Constraint("DistanceY", 0, 2, 0, 1, 6.2),
    Sketcher.Constraint("DistanceY", 0, 2, -1, 1, 20.0),
    Sketcher.Constraint("DistanceX", 0, 2, -1, 1, 7.99),
])
pocket4 = body.newObject("PartDesign::Pocket", "Pocket003")
pocket4.Profile = sketch6
pocket4.Length = 3
pocket4.Reversed = True

# Sketch on XY plane
sketch7 = body.newObject("Sketcher::SketchObject", "Sketch006")
sketch7.AttachmentSupport = (doc.getObject("XY_Plane"), [""])
sketch7.MapMode = "FlatFace"
sketch7.AttachmentOffset = App.Placement(Vector(0, 0, 2.8), App.Rotation())
sketch7.addGeometry([
    Part.Circle(Vector(-42.35, 72.125, 0), Vector(0, 0, 1), 3.5),
    Part.Circle(Vector(76.375, 0, 0), Vector(0, 0, 1), 3.5),
    Part.Circle(Vector(-42.35, -72.125, 0), Vector(0, 0, 1), 3.5),
], False)
sketch7.addConstraint([
    Sketcher.Constraint("Equal", 0, 1),
    Sketcher.Constraint("Equal", 1, 2),
    Sketcher.Constraint("Symmetric", 0, 3, 2, 3, -1),
    Sketcher.Constraint("PointOnObject", 1, 3, -1),
    Sketcher.Constraint("Diameter", 0, 7.0),
    Sketcher.Constraint("DistanceX", 0, 3, -1, 1, 42.35),
    Sketcher.Constraint("DistanceY", 2, 3, 0, 3, 144.25),
    Sketcher.Constraint("DistanceX", -1, 1, 1, 3, 76.375),
])
doc.recompute()
hole = body.newObject("PartDesign::Hole", "Hole")
hole.Profile = sketch7
hole.ThreadType = "None"
hole.Diameter = 7
hole.DepthType = "Dimension"
hole.Depth = 6
hole.DrillPoint = "Flat"

# Sketch on XY plane
sketch8 = body.newObject("Sketcher::SketchObject", "Sketch007")
sketch8.AttachmentSupport = (doc.getObject("XY_Plane"), [""])
sketch8.MapMode = "FlatFace"
sketch8.AttachmentOffset = App.Placement(Vector(0, 0, -3.2), App.Rotation())
sketch8.addGeometry([
    Part.Circle(Vector(-42.35, 72.125, 0), Vector(0, 0, 1), 1.7),
    Part.Circle(Vector(76.375, 0, 0), Vector(0, 0, 1), 1.7),
    Part.Circle(Vector(-42.35, -72.125, 0), Vector(0, 0, 1), 1.7),
], False)
sketch8.addConstraint([
    Sketcher.Constraint("Equal", 0, 1),
    Sketcher.Constraint("Equal", 1, 2),
    Sketcher.Constraint("Symmetric", 0, 3, 2, 3, -1),
    Sketcher.Constraint("PointOnObject", 1, 3, -1),
    Sketcher.Constraint("Diameter", 0, 3.4),
    Sketcher.Constraint("DistanceX", 0, 3, -1, 1, 42.35),
    Sketcher.Constraint("DistanceY", 2, 3, 0, 3, 144.25),
    Sketcher.Constraint("DistanceX", -1, 1, 1, 3, 76.375),
])
doc.recompute()
hole2 = body.newObject("PartDesign::Hole", "Hole001")
hole2.Profile = sketch8
hole2.ThreadType = "None"
hole2.Diameter = 3.4
hole2.DepthType = "Dimension"
hole2.Depth = 16.8
hole2.DrillPoint = "Flat"

# Sketch on XY plane
sketch9 = body.newObject("Sketcher::SketchObject", "Sketch008")
sketch9.AttachmentSupport = (doc.getObject("XY_Plane"), [""])
sketch9.MapMode = "FlatFace"
sketch9.AttachmentOffset = App.Placement(Vector(0, 0, 2.8), App.Rotation())
sketch9.addGeometry([
    Part.LineSegment(Vector(55.15, 72.25, 0), Vector(20.15, 72.25, 0)),
    Part.LineSegment(Vector(20.15, 72.25, 0), Vector(20.15, 50.25, 0)),
    Part.LineSegment(Vector(20.15, 50.25, 0), Vector(55.15, 50.25, 0)),
    Part.LineSegment(Vector(55.15, 50.25, 0), Vector(55.15, 72.25, 0)),
], False)
sketch9.addConstraint([
    Sketcher.Constraint("Coincident", 0, 2, 1, 1),
    Sketcher.Constraint("Coincident", 1, 2, 2, 1),
    Sketcher.Constraint("Coincident", 2, 2, 3, 1),
    Sketcher.Constraint("Coincident", 3, 2, 0, 1),
    Sketcher.Constraint("Horizontal", 0),
    Sketcher.Constraint("Vertical", 1),
    Sketcher.Constraint("Horizontal", 2),
    Sketcher.Constraint("Vertical", 3),
    Sketcher.Constraint("DistanceX", 0, 2, 0, 1, 35.0),
    Sketcher.Constraint("DistanceY", 1, 2, 1, 1, 22.0),
    Sketcher.Constraint("DistanceX", -1, 1, 0, 2, 20.15),
    Sketcher.Constraint("DistanceY", -1, 1, 0, 2, 72.25),
])
pocket5 = body.newObject("PartDesign::Pocket", "Pocket004")
pocket5.Profile = sketch9
pocket5.Length = 2.8

# Sketch on XY plane
sketch10 = body.newObject("Sketcher::SketchObject", "Sketch009")
sketch10.AttachmentSupport = (doc.getObject("XY_Plane"), [""])
sketch10.MapMode = "FlatFace"
sketch10.AttachmentOffset = App.Placement(Vector(0, 0, 2.8), App.Rotation())
sketch10.addGeometry([
    Part.Circle(Vector(59, 3.88, 0), Vector(0, 0, 1), 6.5),  # 0
    Part.Circle(Vector(59, -12.63, 0), Vector(0, 0, 1), 6.5),  # 1
    Part.Circle(Vector(59, 20.39, 0), Vector(0, 0, 1), 6.5),  # 2
    Part.Circle(Vector(59, -29.14, 0), Vector(0, 0, 1), 6.5),  # 3
    Part.Circle(Vector(59, -45.65, 0), Vector(0, 0, 1), 6.5),  # 4
], False)
sketch10.addConstraint([
    Sketcher.Constraint("Equal", 0, 1),
    Sketcher.Constraint("Equal", 1, 2),
    Sketcher.Constraint("Equal", 2, 3),
    Sketcher.Constraint("Equal", 3, 4),
    Sketcher.Constraint("Vertical", 0, 3, 1, 3),
    Sketcher.Constraint("Vertical", 1, 3, 2, 3),
    Sketcher.Constraint("Vertical", 2, 3, 3, 3),
    Sketcher.Constraint("Vertical", 3, 3, 4, 3),
    Sketcher.Constraint("Diameter", 0, 13.0),
    Sketcher.Constraint("DistanceX", -1, 1, 0, 3, 59.0),
    Sketcher.Constraint("DistanceY", -1, 1, 0, 3, 3.88),
    Sketcher.Constraint("DistanceY", 1, 3, -1, 1, 12.63),
    Sketcher.Constraint("DistanceY", -1, 1, 2, 3, 20.39),
    Sketcher.Constraint("DistanceY", 3, 3, -1, 1, 29.14),
    Sketcher.Constraint("DistanceY", 4, 3, -1, 1, 45.65),
])
doc.recompute()
hole3 = body.newObject("PartDesign::Hole", "Hole002")
hole3.Profile = sketch10
hole3.ThreadType = "None"
hole3.Diameter = 13
hole3.DepthType = "Dimension"
hole3.Depth = 2.8
hole3.DrillPoint = "Flat"

# Sketch on YZ plane
sketch11 = body.newObject("Sketcher::SketchObject", "Sketch010")
sketch11.AttachmentSupport = (doc.getObject("YZ_Plane"), [""])
sketch11.MapMode = "FlatFace"
sketch11.AttachmentOffset = App.Placement(Vector(0, 0, -7.99), App.Rotation())
sketch11.addGeometry([
    Part.LineSegment(Vector(80.25, -20, 0), Vector(76.25, -20, 0)),
    Part.LineSegment(Vector(76.25, -20, 0), Vector(76.25, -13.8, 0)),
    Part.LineSegment(Vector(76.25, -13.8, 0), Vector(80.25, -13.8, 0)),
    Part.LineSegment(Vector(80.25, -13.8, 0), Vector(80.25, -20, 0)),
], False)
sketch11.addConstraint([
    Sketcher.Constraint("Coincident", 0, 2, 1, 1),
    Sketcher.Constraint("Coincident", 1, 2, 2, 1),
    Sketcher.Constraint("Coincident", 2, 2, 3, 1),
    Sketcher.Constraint("Coincident", 3, 2, 0, 1),
    Sketcher.Constraint("Horizontal", 0),
    Sketcher.Constraint("Vertical", 1),
    Sketcher.Constraint("Horizontal", 2),
    Sketcher.Constraint("Vertical", 3),
    Sketcher.Constraint("DistanceX", 0, 2, 0, 1, 4.0),
    Sketcher.Constraint("DistanceY", 1, 1, 1, 2, 6.2),
    Sketcher.Constraint("DistanceY", 0, 2, -1, 1, 20.0),
    Sketcher.Constraint("DistanceX", -1, 1, 0, 2, 76.25),
])
pocket6 = body.newObject("PartDesign::Pocket", "Pocket005")
pocket6.Profile = sketch11
pocket6.Length = 2.3
pocket6.Reversed = True

# Sketch on XY plane
sketch12 = body.newObject("Sketcher::SketchObject", "Sketch011")
sketch12.AttachmentSupport = (doc.getObject("XY_Plane"), [""])
sketch12.MapMode = "FlatFace"
sketch12.addGeometry([
    Part.LineSegment(Vector(0, 0, 0), Vector(0, -60, 0)),
    Part.LineSegment(Vector(0, -60, 0), Vector(-70, -60, 0)),
    Part.LineSegment(Vector(-70, -60, 0), Vector(-70, 0, 0)),
    Part.LineSegment(Vector(-70, 0, 0), Vector(0, 0, 0)),
], False)
sketch12.addConstraint([
    Sketcher.Constraint("Coincident", 0, 2, 1, 1),
    Sketcher.Constraint("Coincident", 1, 2, 2, 1),
    Sketcher.Constraint("Coincident", 2, 2, 3, 1),
    Sketcher.Constraint("Coincident", 3, 2, 0, 1),
    Sketcher.Constraint("Vertical", 0),
    Sketcher.Constraint("Horizontal", 1),
    Sketcher.Constraint("Vertical", 2),
    Sketcher.Constraint("Horizontal", 3),
    Sketcher.Constraint("Coincident", 3, 2, -1, 1),
    Sketcher.Constraint("DistanceX", 1, 2, 1, 1, 70.0),
    Sketcher.Constraint("DistanceY", 0, 2, 0, 1, 60.0),
])
pocket7 = body.newObject("PartDesign::Pocket", "Pocket006")
pocket7.Profile = sketch12
pocket7.Length = 1.5
pocket7.Reversed = True

doc.recompute()
